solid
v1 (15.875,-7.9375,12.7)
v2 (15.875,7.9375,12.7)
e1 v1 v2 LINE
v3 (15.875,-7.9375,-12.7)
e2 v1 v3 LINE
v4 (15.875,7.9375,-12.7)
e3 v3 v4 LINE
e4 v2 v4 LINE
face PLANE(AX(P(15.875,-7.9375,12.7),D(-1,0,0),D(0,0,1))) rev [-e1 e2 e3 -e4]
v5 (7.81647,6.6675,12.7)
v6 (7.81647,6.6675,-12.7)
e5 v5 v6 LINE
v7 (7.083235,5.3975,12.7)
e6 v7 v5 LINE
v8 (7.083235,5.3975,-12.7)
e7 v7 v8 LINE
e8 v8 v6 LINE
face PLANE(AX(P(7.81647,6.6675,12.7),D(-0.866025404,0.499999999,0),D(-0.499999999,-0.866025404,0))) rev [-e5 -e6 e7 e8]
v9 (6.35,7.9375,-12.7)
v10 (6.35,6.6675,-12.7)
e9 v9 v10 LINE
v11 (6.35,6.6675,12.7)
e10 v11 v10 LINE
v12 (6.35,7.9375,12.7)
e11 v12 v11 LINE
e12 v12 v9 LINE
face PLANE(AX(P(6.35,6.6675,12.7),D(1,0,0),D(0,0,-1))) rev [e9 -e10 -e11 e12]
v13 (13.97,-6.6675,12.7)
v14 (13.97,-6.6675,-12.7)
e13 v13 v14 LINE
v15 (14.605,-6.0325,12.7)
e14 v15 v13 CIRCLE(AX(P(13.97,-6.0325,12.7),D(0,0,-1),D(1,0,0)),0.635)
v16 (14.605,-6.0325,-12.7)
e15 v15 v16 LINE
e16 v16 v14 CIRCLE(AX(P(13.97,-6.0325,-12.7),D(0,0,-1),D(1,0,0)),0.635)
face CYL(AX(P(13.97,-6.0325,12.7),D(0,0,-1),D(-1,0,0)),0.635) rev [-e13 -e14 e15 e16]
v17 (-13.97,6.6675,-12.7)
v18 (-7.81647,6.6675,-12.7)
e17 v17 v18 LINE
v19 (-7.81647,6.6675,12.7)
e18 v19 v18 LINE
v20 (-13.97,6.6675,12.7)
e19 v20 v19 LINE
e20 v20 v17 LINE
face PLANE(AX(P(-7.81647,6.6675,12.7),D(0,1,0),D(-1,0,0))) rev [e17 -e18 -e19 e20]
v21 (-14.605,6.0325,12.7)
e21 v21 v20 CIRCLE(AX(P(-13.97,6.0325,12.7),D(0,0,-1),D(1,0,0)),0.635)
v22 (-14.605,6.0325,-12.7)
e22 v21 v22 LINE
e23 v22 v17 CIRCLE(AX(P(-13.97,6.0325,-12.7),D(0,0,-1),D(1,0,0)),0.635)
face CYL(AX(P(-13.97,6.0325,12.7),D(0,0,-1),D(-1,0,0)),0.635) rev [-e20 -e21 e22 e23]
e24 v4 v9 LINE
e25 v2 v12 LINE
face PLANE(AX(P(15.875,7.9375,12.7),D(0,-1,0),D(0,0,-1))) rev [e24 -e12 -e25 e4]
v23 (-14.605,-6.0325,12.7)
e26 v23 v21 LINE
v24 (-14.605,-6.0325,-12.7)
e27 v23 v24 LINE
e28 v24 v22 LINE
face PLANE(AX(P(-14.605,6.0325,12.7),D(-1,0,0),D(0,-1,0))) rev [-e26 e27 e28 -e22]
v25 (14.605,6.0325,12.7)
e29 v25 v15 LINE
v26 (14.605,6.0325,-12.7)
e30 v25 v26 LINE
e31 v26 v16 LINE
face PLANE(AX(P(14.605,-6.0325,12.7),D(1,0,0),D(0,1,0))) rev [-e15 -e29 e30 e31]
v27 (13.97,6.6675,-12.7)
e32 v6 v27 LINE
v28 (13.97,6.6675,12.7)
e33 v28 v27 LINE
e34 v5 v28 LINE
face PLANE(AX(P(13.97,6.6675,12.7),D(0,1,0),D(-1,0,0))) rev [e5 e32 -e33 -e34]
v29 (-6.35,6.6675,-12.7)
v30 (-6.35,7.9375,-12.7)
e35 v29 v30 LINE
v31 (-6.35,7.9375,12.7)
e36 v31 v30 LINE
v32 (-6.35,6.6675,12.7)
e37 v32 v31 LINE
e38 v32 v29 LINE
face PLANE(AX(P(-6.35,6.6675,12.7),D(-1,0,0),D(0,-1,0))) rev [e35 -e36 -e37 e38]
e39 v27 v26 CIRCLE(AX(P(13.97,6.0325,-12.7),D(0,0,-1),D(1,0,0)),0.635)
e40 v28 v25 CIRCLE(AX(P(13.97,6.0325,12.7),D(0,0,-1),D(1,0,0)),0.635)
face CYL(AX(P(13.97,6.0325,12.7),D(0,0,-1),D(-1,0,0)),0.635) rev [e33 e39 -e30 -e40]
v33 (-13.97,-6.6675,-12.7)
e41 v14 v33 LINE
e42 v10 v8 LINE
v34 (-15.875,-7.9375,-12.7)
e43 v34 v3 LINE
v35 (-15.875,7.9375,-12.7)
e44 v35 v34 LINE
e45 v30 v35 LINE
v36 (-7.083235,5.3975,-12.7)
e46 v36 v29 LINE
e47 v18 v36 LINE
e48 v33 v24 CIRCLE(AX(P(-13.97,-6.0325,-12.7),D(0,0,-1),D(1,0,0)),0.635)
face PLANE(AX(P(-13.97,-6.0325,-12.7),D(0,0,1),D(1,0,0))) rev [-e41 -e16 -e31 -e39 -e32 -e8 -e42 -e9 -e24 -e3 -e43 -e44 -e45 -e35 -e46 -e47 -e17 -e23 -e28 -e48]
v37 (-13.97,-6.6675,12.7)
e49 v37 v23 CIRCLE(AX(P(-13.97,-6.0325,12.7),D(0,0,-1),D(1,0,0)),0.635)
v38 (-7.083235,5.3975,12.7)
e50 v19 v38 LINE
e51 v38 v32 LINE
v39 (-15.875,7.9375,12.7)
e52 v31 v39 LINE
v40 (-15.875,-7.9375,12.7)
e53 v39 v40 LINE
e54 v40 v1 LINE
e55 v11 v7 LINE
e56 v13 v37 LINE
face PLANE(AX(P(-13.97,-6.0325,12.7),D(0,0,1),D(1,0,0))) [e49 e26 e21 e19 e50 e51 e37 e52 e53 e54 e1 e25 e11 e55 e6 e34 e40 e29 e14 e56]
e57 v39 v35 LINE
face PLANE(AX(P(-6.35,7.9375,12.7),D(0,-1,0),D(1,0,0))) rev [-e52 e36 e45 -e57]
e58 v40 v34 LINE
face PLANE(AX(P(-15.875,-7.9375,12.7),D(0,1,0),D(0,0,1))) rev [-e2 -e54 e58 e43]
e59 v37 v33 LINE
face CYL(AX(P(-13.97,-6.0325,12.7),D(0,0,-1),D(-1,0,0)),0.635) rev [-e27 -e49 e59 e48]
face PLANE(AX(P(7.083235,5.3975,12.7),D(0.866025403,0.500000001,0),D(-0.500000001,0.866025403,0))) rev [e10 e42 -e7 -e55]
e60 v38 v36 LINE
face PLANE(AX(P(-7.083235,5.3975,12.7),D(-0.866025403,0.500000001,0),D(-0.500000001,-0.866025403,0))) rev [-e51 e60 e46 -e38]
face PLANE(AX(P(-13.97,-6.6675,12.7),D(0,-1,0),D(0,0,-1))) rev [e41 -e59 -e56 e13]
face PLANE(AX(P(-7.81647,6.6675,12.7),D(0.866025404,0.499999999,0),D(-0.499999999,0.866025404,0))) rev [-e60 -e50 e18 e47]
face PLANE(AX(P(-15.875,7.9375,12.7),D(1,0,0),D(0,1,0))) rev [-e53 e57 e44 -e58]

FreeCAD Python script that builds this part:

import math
import FreeCAD as App
import Part
import Sketcher
Q = App.Units.Quantity

doc = App.newDocument("Part")
body = doc.addObject("PartDesign::Body", "Body")

sketch1 = body.newObject("Sketcher::SketchObject", "Sketch")
sketch1.AttachmentSupport = (doc.getObject("XY_Plane"), [""])
sketch1.MapMode = "FlatFace"
sketch1.addGeometry(Part.LineSegment(App.Vector(-6.3, 7.9, 0), App.Vector(-15.9, 7.9, 0)), False)
sketch1.addGeometry(Part.LineSegment(App.Vector(-15.9, 7.9, 0), App.Vector(-15.9, -7.9, 0)), False)
sketch1.addGeometry(Part.LineSegment(App.Vector(-15.9, -7.9, 0), App.Vector(15.9, -7.9, 0)), False)
sketch1.addGeometry(Part.LineSegment(App.Vector(15.9, -7.9, 0), App.Vector(15.9, 7.9, 0)), False)
sketch1.addGeometry(Part.LineSegment(App.Vector(15.9, 7.9, 0), App.Vector(6.3, 7.9, 0)), False)
sketch1.addGeometry(Part.LineSegment(App.Vector(6.3, 7.9, 0), App.Vector(6.3, 6.7, 0)), False)
sketch1.addGeometry(Part.LineSegment(App.Vector(6.3, 6.7, 0), App.Vector(7.1, 5.4, 0)), False)
sketch1.addGeometry(Part.LineSegment(App.Vector(7.1, 5.4, 0), App.Vector(7.8, 6.7, 0)), False)
sketch1.addGeometry(Part.LineSegment(App.Vector(7.8, 6.7, 0), App.Vector(14, 6.7, 0)), False)
sketch1.addGeometry(Part.ArcOfCircle(Part.Circle(App.Vector(14, 6, 0), App.Vector(0, 0, 1), 0.6), math.radians(0), math.radians(90)), False)
sketch1.addGeometry(Part.LineSegment(App.Vector(14.6, 6, 0), App.Vector(14.6, -6, 0)), False)
sketch1.addGeometry(Part.ArcOfCircle(Part.Circle(App.Vector(14, -6, 0), App.Vector(0, 0, 1), 0.6), math.radians(-90), math.radians(0)), False)
sketch1.addGeometry(Part.LineSegment(App.Vector(14, -6.7, 0), App.Vector(-14, -6.7, 0)), False)
sketch1.addGeometry(Part.ArcOfCircle(Part.Circle(App.Vector(-14, -6, 0), App.Vector(0, 0, 1), 0.6), math.radians(180), math.radians(270)), False)
sketch1.addGeometry(Part.LineSegment(App.Vector(-14.6, -6, 0), App.Vector(-14.6, 6, 0)), False)
sketch1.addGeometry(Part.ArcOfCircle(Part.Circle(App.Vector(-14, 6, 0), App.Vector(0, 0, 1), 0.6), math.radians(90), math.radians(180)), False)
sketch1.addGeometry(Part.LineSegment(App.Vector(-14, 6.7, 0), App.Vector(-7.8, 6.7, 0)), False)
sketch1.addGeometry(Part.LineSegment(App.Vector(-7.8, 6.7, 0), App.Vector(-7.1, 5.4, 0)), False)
sketch1.addGeometry(Part.LineSegment(App.Vector(-7.1, 5.4, 0), App.Vector(-6.3, 6.7, 0)), False)
sketch1.addGeometry(Part.LineSegment(App.Vector(-6.3, 6.7, 0), App.Vector(-6.3, 7.9, 0)), False)
sketch1.addConstraint(Sketcher.Constraint("Coincident", 0, 2, 1, 1))
sketch1.addConstraint(Sketcher.Constraint("Coincident", 1, 2, 2, 1))
sketch1.addConstraint(Sketcher.Constraint("Coincident", 2, 2, 3, 1))
sketch1.addConstraint(Sketcher.Constraint("Coincident", 3, 2, 4, 1))
sketch1.addConstraint(Sketcher.Constraint("Coincident", 4, 2, 5, 1))
sketch1.addConstraint(Sketcher.Constraint("Coincident", 5, 2, 6, 1))
sketch1.addConstraint(Sketcher.Constraint("Coincident", 6, 2, 7, 1))
sketch1.addConstraint(Sketcher.Constraint("Coincident", 7, 2, 8, 1))
sketch1.addConstraint(Sketcher.Constraint("Tangent", 8, 2, 9, 2))
sketch1.addConstraint(Sketcher.Constraint("Tangent", 9, 1, 10, 1))
sketch1.addConstraint(Sketcher.Constraint("Tangent", 10, 2, 11, 2))
sketch1.addConstraint(Sketcher.Constraint("Tangent", 11, 1, 12, 1))
sketch1.addConstraint(Sketcher.Constraint("Tangent", 12, 2, 13, 2))
sketch1.addConstraint(Sketcher.Constraint("Tangent", 13, 1, 14, 1))
sketch1.addConstraint(Sketcher.Constraint("Tangent", 14, 2, 15, 2))
sketch1.addConstraint(Sketcher.Constraint("Tangent", 15, 1, 16, 1))
sketch1.addConstraint(Sketcher.Constraint("Coincident", 16, 2, 17, 1))
sketch1.addConstraint(Sketcher.Constraint("Coincident", 17, 2, 18, 1))
sketch1.addConstraint(Sketcher.Constraint("Coincident", 18, 2, 19, 1))
sketch1.addConstraint(Sketcher.Constraint("Coincident", 19, 2, 0, 1))
sketch1.addConstraint(Sketcher.Constraint("Horizontal", 0))
sketch1.addConstraint(Sketcher.Constraint("Vertical", 1))
sketch1.addConstraint(Sketcher.Constraint("Horizontal", 2))
sketch1.addConstraint(Sketcher.Constraint("Vertical", 3))
sketch1.addConstraint(Sketcher.Constraint("Horizontal", 4))
sketch1.addConstraint(Sketcher.Constraint("Vertical", 5))
sketch1.addConstraint(Sketcher.Constraint("Horizontal", 8))
sketch1.addConstraint(Sketcher.Constraint("Vertical", 10))
sketch1.addConstraint(Sketcher.Constraint("Horizontal", 12))
sketch1.addConstraint(Sketcher.Constraint("Vertical", 14))
sketch1.addConstraint(Sketcher.Constraint("Horizontal", 16))
sketch1.addConstraint(Sketcher.Constraint("Vertical", 19))
sketch1.addConstraint(Sketcher.Constraint("Equal", 9, 11))
sketch1.addConstraint(Sketcher.Constraint("Equal", 11, 13))
sketch1.addConstraint(Sketcher.Constraint("Equal", 13, 15))
sketch1.addConstraint(Sketcher.Constraint("Symmetric", 9, 3, 13, 3, -1, 1))
sketch1.addConstraint(Sketcher.Constraint("Symmetric", 0, 2, 2, 2, -1, 1))
sketch1.addConstraint(Sketcher.Constraint("Symmetric", 7, 2, 16, 2, -2))
sketch1.addConstraint(Sketcher.Constraint("Symmetric", 6, 2, 17, 2, -2))
sketch1.addConstraint(Sketcher.Constraint("Symmetric", 5, 2, 18, 2, -2))
sketch1.addConstraint(Sketcher.Constraint("Parallel", 6, 17))
sketch1.addConstraint(Sketcher.Constraint("Horizontal", 0, 2, 3, 2))
sketch1.addConstraint(Sketcher.Constraint("Horizontal", 5, 2, 7, 2))
sketch1.addConstraint(Sketcher.Constraint("DistanceX", 12, 2, 12, 1, Q("1.1 in")))
sketch1.addConstraint(Sketcher.Constraint("Angle", 6, Q("-60 deg")))
sketch1.addConstraint(Sketcher.Constraint("Radius", 9, Q("0.025 in")))
sketch1.addConstraint(Sketcher.Constraint("DistanceX", 2, 1, 2, 2, Q("1.25 in")))
sketch1.addConstraint(Sketcher.Constraint("DistanceY", 5, 2, 5, 1, Q("0.05 in")))
sketch1.addConstraint(Sketcher.Constraint("DistanceX", 4, 2, 9, 3, Q("0.3 in")))
sketch1.addConstraint(Sketcher.Constraint("DistanceY", 11, 3, 5, 2, Q("0.5 in")))
sketch1.addConstraint(Sketcher.Constraint("DistanceY", 6, 2, 4, 2, Q("0.1 in")))
pad1 = body.newObject("PartDesign::Pad", "Pad")
pad1.Profile = sketch1
pad1.Length = Q("1 in")
pad1.Midplane = True

doc.recompute()
